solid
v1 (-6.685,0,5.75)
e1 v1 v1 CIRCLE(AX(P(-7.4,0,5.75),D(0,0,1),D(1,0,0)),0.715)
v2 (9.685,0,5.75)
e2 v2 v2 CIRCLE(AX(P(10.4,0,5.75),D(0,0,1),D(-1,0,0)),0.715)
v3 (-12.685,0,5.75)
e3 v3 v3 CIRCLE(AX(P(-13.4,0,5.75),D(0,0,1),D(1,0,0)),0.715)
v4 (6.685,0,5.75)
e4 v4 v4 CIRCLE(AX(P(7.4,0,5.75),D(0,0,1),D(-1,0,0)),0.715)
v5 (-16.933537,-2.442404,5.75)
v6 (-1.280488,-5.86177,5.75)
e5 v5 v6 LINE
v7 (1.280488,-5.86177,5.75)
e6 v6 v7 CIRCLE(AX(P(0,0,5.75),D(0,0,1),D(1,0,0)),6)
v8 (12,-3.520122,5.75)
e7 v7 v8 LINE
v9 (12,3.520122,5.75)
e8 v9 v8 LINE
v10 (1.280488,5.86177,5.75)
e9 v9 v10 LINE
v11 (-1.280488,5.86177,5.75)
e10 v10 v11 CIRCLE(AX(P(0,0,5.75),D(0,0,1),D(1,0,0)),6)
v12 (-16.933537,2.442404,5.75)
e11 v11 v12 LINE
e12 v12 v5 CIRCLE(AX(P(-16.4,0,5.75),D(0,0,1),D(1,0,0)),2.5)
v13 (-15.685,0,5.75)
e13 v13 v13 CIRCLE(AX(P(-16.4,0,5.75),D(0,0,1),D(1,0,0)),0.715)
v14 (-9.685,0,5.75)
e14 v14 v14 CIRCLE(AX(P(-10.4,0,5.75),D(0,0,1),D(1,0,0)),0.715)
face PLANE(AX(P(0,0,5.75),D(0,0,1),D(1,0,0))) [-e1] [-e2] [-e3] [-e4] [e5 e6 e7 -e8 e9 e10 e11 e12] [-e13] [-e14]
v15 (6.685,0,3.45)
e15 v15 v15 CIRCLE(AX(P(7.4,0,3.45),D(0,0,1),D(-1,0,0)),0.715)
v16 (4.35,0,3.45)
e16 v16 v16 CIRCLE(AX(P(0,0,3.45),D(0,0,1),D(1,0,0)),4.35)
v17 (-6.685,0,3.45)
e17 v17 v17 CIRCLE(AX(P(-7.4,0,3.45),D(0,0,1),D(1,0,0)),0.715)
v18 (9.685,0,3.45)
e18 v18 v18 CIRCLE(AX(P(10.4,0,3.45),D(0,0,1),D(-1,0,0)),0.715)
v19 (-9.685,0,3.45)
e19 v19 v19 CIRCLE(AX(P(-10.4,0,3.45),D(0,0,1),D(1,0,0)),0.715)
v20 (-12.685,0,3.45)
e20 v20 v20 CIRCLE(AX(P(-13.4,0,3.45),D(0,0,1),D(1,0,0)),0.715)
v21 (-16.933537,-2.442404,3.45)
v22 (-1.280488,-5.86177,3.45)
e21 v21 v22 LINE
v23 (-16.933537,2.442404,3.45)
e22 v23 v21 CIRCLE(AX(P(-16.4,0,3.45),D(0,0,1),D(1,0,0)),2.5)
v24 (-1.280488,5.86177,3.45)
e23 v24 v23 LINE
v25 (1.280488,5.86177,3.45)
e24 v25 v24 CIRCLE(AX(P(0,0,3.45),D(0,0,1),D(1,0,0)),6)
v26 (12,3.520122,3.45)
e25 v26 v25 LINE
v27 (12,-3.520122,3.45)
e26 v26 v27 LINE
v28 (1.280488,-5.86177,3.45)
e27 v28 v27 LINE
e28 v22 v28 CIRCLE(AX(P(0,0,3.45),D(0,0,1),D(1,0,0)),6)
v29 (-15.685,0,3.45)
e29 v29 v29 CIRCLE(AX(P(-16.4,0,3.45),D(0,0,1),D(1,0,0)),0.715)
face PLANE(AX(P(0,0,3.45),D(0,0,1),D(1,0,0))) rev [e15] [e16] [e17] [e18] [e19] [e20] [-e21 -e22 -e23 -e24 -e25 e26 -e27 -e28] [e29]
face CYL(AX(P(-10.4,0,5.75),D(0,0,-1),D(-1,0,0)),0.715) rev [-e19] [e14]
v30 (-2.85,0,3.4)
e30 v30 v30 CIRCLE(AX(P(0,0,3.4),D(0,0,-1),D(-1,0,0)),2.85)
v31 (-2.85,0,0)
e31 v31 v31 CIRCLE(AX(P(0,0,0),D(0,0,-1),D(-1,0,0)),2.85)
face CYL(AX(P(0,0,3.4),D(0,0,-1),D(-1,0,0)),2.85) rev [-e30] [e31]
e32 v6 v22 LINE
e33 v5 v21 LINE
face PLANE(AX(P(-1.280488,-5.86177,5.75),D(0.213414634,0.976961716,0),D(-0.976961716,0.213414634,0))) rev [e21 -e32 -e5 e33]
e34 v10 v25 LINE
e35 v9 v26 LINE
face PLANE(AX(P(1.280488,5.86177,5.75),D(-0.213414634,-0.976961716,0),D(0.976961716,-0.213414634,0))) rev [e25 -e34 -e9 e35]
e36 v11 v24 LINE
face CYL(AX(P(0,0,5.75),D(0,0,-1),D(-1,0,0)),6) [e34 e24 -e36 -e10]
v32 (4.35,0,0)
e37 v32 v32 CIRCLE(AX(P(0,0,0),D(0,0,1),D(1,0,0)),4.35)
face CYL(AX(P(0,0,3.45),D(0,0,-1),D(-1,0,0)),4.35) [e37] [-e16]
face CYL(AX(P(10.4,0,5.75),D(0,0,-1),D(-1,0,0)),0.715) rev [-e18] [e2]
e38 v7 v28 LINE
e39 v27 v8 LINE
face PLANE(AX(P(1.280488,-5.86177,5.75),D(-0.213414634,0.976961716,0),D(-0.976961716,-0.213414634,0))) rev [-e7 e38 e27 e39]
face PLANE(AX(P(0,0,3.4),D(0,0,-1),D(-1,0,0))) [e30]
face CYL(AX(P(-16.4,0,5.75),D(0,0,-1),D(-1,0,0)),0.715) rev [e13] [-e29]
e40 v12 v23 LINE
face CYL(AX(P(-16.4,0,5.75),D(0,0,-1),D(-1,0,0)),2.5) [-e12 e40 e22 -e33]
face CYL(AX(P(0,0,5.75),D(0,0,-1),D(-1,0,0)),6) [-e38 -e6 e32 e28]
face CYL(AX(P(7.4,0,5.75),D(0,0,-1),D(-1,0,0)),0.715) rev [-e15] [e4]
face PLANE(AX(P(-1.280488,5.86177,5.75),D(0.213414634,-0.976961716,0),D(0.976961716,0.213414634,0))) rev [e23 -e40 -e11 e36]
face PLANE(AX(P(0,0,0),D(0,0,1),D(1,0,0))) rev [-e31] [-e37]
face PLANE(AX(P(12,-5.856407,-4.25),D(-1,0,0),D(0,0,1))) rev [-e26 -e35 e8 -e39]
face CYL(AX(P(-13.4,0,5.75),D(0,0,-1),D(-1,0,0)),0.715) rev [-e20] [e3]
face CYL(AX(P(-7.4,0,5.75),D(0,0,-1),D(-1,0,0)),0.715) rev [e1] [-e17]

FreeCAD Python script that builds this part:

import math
import FreeCAD as App
import Part
import Sketcher
from FreeCAD import Vector
Q = App.Units.Quantity


def add_polygon(sketch, points):
    """Adds a closed chain of lines whose ends are joined by coincident constraints."""
    first, n = sketch.GeometryCount, len(points)
    for a, b in zip(points, points[1:] + points[:1]):
        sketch.addGeometry(Part.LineSegment(App.Vector(*a, 0), App.Vector(*b, 0)), False)
    for i in range(n):
        sketch.addConstraint(Sketcher.Constraint("Coincident", first + i, 2, first + (i + 1) % n, 1))

doc = App.newDocument("Part")
body = doc.addObject("PartDesign::Body", "Body")

# Sketch on XY plane
sketch1 = doc.addObject("Sketcher::SketchObject", "Sketch")
body.addObject(sketch1)
sketch1.AttachmentSupport = (doc.XY_Plane, [""])
sketch1.MapMode = "FlatFace"
sketch1.addGeometry(Part.Circle(Vector(0, 0, 0), Vector(0, 0, 1), 4.3), False)
sketch1.addConstraint(Sketcher.Constraint("Coincident", 0, 3, -1, 1))
sketch1.addConstraint(Sketcher.Constraint("Diameter", 0, Q("8.7 mm")))
pad1 = doc.addObject("PartDesign::Pad", "Pad")
body.addObject(pad1)
pad1.Profile = sketch1
pad1.Length = 3.45

# Sketch on XY plane
sketch2 = doc.addObject("Sketcher::SketchObject", "Sketch001")
body.addObject(sketch2)
sketch2.AttachmentSupport = (doc.XY_Plane, [""])
sketch2.MapMode = "FlatFace"
sketch2.AttachmentOffset = App.Placement(Vector(0, 0, 3.45), App.Rotation())
sketch2.addGeometry(Part.LineSegment(Vector(-1.3, 5.9, 0), Vector(-16.9, 2.4, 0)), False)
sketch2.addGeometry(Part.ArcOfCircle(Part.Circle(Vector(-16.4, 0, 0), Vector(0, 0, 1), 2.5), math.radians(102), math.radians(258)), False)
sketch2.addGeometry(Part.LineSegment(Vector(-16.9, -2.4, 0), Vector(-1.3, -5.9, 0)), False)
sketch2.addGeometry(Part.ArcOfCircle(Part.Circle(Vector(0, 0, 0), Vector(0, 0, 1), 6), math.radians(-102), math.radians(-78)), False)
sketch2.addGeometry(Part.LineSegment(Vector(1.3, -5.9, 0), Vector(16.9, -2.4, 0)), False)
sketch2.addGeometry(Part.ArcOfCircle(Part.Circle(Vector(16.4, 0, 0), Vector(0, 0, 1), 2.5), math.radians(-78), math.radians(78)), False)
sketch2.addGeometry(Part.LineSegment(Vector(16.9, 2.4, 0), Vector(1.3, 5.9, 0)), False)
sketch2.addGeometry(Part.ArcOfCircle(Part.Circle(Vector(0, 0, 0), Vector(0, 0, 1), 6), math.radians(78), math.radians(102)), False)
sketch2.addGeometry(Part.Circle(Vector(-16.4, 0, 0), Vector(0, 0, 1), 0.7), False)
sketch2.addGeometry(Part.Circle(Vector(-13.4, 0, 0), Vector(0, 0, 1), 0.7), False)
sketch2.addGeometry(Part.Circle(Vector(-10.4, 0, 0), Vector(0, 0, 1), 0.7), False)
sketch2.addGeometry(Part.Circle(Vector(-7.4, 0, 0), Vector(0, 0, 1), 0.7), False)
sketch2.addGeometry(Part.Circle(Vector(7.4, 0, 0), Vector(0, 0, 1), 0.7), False)
sketch2.addGeometry(Part.Circle(Vector(10.4, 0, 0), Vector(0, 0, 1), 0.7), False)
sketch2.addGeometry(Part.Circle(Vector(13.4, 0, 0), Vector(0, 0, 1), 0.7), False)
sketch2.addGeometry(Part.Circle(Vector(16.4, 0, 0), Vector(0, 0, 1), 0.7), False)
sketch2.addConstraint(Sketcher.Constraint("Tangent", 0, 2, 1, 1))
sketch2.addConstraint(Sketcher.Constraint("Tangent", 1, 2, 2, 1))
sketch2.addConstraint(Sketcher.Constraint("Tangent", 2, 2, 3, 1))
sketch2.addConstraint(Sketcher.Constraint("Tangent", 3, 2, 4, 1))
sketch2.addConstraint(Sketcher.Constraint("Tangent", 4, 2, 5, 1))
sketch2.addConstraint(Sketcher.Constraint("Tangent", 5, 2, 6, 1))
sketch2.addConstraint(Sketcher.Constraint("Tangent", 6, 2, 7, 1))
sketch2.addConstraint(Sketcher.Constraint("Tangent", 7, 2, 0, 1))
sketch2.addConstraint(Sketcher.Constraint("Coincident", 3, 3, -1, 1))
sketch2.addConstraint(Sketcher.Constraint("Coincident", 7, 3, -1, 1))
sketch2.addConstraint(Sketcher.Constraint("Coincident", 8, 3, 1, 3))
sketch2.addConstraint(Sketcher.Constraint("Coincident", 15, 3, 5, 3))
sketch2.addConstraint(Sketcher.Constraint("Equal", 1, 5))
sketch2.addConstraint(Sketcher.Constraint("Equal", 3, 7))
sketch2.addConstraint(Sketcher.Constraint("Equal", 8, 9))
sketch2.addConstraint(Sketcher.Constraint("Equal", 9, 10))
sketch2.addConstraint(Sketcher.Constraint("Equal", 10, 11))
sketch2.addConstraint(Sketcher.Constraint("Equal", 11, 12))
sketch2.addConstraint(Sketcher.Constraint("Equal", 12, 13))
sketch2.addConstraint(Sketcher.Constraint("Equal", 13, 14))
sketch2.addConstraint(Sketcher.Constraint("Equal", 14, 15))
sketch2.addConstraint(Sketcher.Constraint("Symmetric", 1, 3, 5, 3, -1, 1))
sketch2.addConstraint(Sketcher.Constraint("Symmetric", 11, 3, 12, 3, -1, 1))
sketch2.addConstraint(Sketcher.Constraint("Symmetric", 10, 3, 13, 3, -1, 1))
sketch2.addConstraint(Sketcher.Constraint("Symmetric", 9, 3, 14, 3, -1, 1))
sketch2.addConstraint(Sketcher.Constraint("PointOnObject", 1, 3, -1))
sketch2.addConstraint(Sketcher.Constraint("PointOnObject", 9, 3, -1))
sketch2.addConstraint(Sketcher.Constraint("PointOnObject", 10, 3, -1))
sketch2.addConstraint(Sketcher.Constraint("PointOnObject", 11, 3, -1))
sketch2.addConstraint(Sketcher.Constraint("Radius", 3, Q("6 mm")))
sketch2.addConstraint(Sketcher.Constraint("Radius", 1, Q("2.5 mm")))
sketch2.addConstraint(Sketcher.Constraint("Diameter", 8, Q("1.43 mm")))
sketch2.addConstraint(Sketcher.Constraint("DistanceX", 1, 3, 9, 3, Q("3 mm")))
sketch2.addConstraint(Sketcher.Constraint("DistanceX", 9, 3, 10, 3, Q("3 mm")))
sketch2.addConstraint(Sketcher.Constraint("DistanceX", 10, 3, 11, 3, Q("3 mm")))
sketch2.addConstraint(Sketcher.Constraint("DistanceX", 1, 3, -1, 1, Q("16.4 mm")))
pad2 = doc.addObject("PartDesign::Pad", "Pad001")
body.addObject(pad2)
pad2.Profile = sketch2
pad2.Length = 2.3

# Sketch on XY plane
sketch3 = doc.addObject("Sketcher::SketchObject", "Sketch002")
body.addObject(sketch3)
sketch3.AttachmentSupport = (doc.XY_Plane, [""])
sketch3.MapMode = "FlatFace"
sketch3.addGeometry(Part.Circle(Vector(0, 0, 0), Vector(0, 0, 1), 2.9), False)
sketch3.addConstraint(Sketcher.Constraint("Coincident", 0, 3, -1, 1))
sketch3.addConstraint(Sketcher.Constraint("Diameter", 0, Q("5.7 mm")))
pocket1 = doc.addObject("PartDesign::Pocket", "Pocket")
body.addObject(pocket1)
pocket1.Profile = sketch3
pocket1.Length = 3.4
pocket1.Reversed = True

# Sketch on XY plane
sketch4 = doc.addObject("Sketcher::SketchObject", "Sketch003")
body.addObject(sketch4)
sketch4.AttachmentSupport = (doc.XY_Plane, [""])
sketch4.MapMode = "FlatFace"
sketch4.AttachmentOffset = App.Placement(Vector(0, 0, 5.75), App.Rotation())
add_polygon(sketch4, [(12, 5), (12, -6), (25, -6), (25, 5)])  # lines 0-3
sketch4.addConstraint(Sketcher.Constraint("Vertical", 0))
sketch4.addConstraint(Sketcher.Constraint("Horizontal", 1))
sketch4.addConstraint(Sketcher.Constraint("Vertical", 2))
sketch4.addConstraint(Sketcher.Constraint("Horizontal", 3))
sketch4.addConstraint(Sketcher.Constraint("DistanceX", -1, 1, 0, 2, Q("12 mm")))
sketch4.addConstraint(Sketcher.Constraint("DistanceX", 1, 1, 1, 2, Q("12.903948 mm")))
sketch4.addConstraint(Sketcher.Constraint("DistanceY", 0, 2, 0, 1, Q("10.561385 mm")))
sketch4.addConstraint(Sketcher.Constraint("DistanceY", 0, 2, -1, 1, Q("5.856407 mm")))
pocket2 = doc.addObject("PartDesign::Pocket", "Pocket001")
body.addObject(pocket2)
pocket2.Profile = sketch4
pocket2.Length = 10

doc.recompute()
